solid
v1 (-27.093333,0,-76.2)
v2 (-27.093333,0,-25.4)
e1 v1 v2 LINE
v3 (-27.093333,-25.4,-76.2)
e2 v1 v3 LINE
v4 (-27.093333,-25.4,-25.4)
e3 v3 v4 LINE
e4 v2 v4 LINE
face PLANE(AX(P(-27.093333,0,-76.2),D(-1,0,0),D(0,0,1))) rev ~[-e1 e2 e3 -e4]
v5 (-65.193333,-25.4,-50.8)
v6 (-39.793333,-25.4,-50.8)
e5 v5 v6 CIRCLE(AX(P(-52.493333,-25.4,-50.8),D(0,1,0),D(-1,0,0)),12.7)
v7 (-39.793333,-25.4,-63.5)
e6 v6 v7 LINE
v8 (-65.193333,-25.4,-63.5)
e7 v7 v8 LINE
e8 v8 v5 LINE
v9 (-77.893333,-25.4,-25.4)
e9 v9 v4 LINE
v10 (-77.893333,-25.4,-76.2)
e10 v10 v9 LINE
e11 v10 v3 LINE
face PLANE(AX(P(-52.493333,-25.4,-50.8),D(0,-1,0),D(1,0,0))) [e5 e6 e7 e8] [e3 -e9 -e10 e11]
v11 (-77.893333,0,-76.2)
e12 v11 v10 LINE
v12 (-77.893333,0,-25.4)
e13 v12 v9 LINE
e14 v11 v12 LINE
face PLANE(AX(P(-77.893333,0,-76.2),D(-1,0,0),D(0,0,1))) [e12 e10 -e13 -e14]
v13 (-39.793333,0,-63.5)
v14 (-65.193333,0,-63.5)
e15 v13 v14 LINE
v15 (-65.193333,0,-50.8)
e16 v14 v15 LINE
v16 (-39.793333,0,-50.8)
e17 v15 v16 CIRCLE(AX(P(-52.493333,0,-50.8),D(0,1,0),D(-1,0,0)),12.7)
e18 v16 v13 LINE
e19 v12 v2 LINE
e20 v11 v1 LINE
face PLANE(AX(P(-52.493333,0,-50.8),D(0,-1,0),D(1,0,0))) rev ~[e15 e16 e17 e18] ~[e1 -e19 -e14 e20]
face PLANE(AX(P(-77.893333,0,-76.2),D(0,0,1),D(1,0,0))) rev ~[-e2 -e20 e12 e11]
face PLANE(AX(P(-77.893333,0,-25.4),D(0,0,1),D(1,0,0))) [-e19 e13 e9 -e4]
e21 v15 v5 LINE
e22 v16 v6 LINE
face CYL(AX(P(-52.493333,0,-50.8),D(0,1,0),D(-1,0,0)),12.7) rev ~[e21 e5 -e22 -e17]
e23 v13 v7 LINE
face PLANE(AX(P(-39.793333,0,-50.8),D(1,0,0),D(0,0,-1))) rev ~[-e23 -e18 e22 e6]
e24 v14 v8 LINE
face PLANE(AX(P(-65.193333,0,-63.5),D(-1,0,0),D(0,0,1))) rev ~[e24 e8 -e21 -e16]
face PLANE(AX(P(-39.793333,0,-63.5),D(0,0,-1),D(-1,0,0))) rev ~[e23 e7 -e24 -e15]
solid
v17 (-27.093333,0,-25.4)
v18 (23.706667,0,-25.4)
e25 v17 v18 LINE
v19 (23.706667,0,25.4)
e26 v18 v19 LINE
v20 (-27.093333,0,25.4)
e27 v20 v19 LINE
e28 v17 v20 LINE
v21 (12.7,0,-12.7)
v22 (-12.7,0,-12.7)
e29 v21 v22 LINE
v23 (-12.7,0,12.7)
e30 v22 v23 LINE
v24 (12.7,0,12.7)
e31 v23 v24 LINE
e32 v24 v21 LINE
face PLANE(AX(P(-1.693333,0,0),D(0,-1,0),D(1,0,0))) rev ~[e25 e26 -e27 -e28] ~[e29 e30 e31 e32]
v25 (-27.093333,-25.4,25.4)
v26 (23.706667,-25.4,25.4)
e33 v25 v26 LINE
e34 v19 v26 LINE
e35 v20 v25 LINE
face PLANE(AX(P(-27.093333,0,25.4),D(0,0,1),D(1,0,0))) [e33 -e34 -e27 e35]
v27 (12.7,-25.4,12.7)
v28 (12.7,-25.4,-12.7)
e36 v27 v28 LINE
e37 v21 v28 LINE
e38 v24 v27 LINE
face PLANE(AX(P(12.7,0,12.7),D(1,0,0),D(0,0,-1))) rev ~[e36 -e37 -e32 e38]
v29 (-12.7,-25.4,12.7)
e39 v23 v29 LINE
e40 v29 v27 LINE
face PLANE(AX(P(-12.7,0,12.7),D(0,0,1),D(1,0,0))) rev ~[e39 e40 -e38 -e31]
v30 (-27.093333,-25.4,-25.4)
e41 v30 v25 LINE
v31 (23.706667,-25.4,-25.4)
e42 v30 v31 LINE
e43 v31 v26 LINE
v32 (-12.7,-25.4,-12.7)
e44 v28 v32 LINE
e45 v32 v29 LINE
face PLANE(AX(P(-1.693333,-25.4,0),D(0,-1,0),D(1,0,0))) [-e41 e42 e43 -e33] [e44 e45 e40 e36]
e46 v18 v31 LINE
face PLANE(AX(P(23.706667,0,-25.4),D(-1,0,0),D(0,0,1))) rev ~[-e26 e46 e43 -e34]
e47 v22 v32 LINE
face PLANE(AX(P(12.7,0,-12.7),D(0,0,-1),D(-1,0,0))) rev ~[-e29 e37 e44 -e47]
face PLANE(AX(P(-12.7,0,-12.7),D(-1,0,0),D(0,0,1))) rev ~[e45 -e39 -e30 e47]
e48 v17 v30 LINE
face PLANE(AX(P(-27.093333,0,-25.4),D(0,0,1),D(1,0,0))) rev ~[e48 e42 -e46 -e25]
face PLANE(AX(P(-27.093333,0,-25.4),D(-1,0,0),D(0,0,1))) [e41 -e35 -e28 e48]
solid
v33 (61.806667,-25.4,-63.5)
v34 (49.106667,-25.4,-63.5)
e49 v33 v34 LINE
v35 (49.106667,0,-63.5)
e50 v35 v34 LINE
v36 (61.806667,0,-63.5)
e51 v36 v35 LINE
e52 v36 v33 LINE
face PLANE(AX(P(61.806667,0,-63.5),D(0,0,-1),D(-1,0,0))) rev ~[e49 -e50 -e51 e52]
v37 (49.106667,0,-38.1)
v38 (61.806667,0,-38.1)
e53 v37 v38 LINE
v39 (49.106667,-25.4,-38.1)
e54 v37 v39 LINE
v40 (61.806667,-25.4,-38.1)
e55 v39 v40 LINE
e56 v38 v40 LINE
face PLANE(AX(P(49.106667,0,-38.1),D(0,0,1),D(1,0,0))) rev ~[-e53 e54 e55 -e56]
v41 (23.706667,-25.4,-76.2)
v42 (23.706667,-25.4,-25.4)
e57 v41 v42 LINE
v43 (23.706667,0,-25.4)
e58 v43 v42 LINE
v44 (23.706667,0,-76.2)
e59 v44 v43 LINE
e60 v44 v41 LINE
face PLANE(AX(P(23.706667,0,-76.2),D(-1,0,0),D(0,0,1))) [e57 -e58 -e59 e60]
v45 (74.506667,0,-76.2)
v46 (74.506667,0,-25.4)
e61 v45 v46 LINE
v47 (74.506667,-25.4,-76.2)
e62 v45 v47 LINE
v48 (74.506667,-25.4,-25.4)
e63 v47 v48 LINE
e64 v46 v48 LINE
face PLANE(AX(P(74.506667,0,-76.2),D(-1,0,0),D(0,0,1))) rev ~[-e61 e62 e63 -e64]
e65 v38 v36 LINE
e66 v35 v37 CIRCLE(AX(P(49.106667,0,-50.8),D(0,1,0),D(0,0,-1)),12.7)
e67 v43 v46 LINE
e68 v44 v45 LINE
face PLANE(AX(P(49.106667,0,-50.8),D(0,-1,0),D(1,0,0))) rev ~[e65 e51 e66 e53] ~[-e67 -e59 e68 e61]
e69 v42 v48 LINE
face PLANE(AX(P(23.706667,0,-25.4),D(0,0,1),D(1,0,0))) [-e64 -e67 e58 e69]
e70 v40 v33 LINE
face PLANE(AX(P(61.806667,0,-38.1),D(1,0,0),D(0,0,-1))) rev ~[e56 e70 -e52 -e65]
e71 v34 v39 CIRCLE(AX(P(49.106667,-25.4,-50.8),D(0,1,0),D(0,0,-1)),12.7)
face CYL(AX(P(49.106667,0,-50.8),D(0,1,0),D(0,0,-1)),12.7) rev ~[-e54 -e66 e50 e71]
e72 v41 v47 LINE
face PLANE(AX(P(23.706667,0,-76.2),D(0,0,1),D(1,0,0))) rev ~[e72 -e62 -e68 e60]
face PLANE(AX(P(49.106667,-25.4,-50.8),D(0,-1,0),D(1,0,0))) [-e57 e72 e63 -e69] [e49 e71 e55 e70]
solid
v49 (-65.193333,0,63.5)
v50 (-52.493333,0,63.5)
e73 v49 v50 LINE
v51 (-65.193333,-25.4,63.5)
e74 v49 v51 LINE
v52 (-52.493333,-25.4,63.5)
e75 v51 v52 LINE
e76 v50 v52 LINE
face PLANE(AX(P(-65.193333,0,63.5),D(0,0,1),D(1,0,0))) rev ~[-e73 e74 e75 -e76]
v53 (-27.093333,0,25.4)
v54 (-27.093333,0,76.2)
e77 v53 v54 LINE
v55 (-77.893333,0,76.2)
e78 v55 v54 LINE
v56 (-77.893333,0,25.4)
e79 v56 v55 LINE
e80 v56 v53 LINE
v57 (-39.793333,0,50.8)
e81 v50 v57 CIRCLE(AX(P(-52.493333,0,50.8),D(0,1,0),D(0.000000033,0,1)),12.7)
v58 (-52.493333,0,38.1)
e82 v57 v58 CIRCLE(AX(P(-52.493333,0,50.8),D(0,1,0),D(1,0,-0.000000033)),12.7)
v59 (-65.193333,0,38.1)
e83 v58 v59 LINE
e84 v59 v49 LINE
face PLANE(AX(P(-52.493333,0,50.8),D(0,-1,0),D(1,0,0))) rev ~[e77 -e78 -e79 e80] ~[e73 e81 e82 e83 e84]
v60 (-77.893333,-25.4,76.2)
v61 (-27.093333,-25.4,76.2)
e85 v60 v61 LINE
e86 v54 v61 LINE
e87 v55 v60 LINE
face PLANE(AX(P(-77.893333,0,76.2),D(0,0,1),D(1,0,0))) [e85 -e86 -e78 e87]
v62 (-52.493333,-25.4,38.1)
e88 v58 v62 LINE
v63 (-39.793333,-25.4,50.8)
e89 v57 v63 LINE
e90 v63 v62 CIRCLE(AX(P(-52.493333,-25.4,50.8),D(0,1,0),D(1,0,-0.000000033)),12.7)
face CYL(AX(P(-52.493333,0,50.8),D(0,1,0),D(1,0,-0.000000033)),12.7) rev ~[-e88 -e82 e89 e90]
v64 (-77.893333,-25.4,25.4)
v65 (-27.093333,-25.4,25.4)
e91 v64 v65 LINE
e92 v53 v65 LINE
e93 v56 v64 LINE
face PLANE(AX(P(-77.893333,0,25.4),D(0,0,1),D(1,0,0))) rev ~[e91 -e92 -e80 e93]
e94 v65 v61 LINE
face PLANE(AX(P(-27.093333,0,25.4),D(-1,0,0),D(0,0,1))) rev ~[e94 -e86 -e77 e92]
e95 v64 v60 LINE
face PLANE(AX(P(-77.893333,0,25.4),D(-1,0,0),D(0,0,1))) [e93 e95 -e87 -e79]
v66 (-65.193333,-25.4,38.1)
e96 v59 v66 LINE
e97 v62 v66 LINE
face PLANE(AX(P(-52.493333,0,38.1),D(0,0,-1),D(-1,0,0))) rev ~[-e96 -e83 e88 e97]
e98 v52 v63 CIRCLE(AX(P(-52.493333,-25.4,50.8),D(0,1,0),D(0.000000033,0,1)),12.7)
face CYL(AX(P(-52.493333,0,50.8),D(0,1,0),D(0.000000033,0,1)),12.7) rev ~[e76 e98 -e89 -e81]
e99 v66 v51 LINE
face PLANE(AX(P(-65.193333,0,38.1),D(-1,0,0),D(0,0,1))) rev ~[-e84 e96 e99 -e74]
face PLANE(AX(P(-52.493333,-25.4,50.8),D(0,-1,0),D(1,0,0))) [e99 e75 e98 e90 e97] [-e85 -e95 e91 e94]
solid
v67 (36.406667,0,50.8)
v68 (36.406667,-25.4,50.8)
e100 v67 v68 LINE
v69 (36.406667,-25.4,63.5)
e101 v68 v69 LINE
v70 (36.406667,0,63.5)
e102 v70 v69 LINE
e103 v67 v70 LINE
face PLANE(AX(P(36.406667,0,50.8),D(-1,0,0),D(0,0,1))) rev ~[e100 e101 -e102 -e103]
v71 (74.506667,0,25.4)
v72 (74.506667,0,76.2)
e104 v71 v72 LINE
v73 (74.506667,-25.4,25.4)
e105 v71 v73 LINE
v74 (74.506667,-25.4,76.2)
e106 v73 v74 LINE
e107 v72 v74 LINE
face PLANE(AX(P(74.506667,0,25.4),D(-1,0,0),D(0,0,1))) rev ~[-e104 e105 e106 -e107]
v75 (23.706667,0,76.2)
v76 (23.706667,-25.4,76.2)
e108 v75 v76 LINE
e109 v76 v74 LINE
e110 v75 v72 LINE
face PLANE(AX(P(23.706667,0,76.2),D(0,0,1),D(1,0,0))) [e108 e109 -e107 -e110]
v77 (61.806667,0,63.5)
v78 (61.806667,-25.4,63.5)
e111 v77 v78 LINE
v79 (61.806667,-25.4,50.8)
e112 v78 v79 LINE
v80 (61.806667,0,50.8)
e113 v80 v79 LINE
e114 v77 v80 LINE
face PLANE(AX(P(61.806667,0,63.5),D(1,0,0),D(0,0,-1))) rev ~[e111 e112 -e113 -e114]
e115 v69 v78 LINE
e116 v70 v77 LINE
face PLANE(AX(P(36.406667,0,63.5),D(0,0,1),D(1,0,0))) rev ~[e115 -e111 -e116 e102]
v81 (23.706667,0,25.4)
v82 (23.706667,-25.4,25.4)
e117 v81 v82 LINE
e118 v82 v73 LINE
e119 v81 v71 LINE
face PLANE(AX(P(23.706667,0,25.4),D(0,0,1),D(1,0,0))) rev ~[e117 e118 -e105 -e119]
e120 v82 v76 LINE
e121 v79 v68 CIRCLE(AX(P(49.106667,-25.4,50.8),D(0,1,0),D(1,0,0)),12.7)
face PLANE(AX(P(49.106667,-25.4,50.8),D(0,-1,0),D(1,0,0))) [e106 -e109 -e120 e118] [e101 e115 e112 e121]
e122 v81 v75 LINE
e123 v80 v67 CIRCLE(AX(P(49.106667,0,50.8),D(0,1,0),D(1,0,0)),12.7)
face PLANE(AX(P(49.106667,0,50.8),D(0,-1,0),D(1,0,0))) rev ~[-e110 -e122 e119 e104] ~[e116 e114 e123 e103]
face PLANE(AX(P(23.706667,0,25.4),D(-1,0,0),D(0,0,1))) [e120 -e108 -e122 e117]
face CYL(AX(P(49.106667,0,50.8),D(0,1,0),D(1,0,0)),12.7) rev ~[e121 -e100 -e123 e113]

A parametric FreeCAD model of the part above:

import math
import FreeCAD as App
import Part
import Sketcher
Q = App.Units.Quantity

doc = App.newDocument("Part")
body = doc.addObject("PartDesign::Body", "Body")
body.AllowCompound = True

sketch1 = body.newObject("Sketcher::SketchObject", "Sketch")
sketch1.AttachmentSupport = (doc.getObject("XZ_Plane"), [""])
sketch1.MapMode = "FlatFace"
sketch1.addGeometry([
    Part.LineSegment(App.Vector(-27, 25, 0), App.Vector(-27, -25, 0)),
    Part.LineSegment(App.Vector(-27, -25, 0), App.Vector(24, -25, 0)),
    Part.LineSegment(App.Vector(24, -25, 0), App.Vector(24, 25, 0)),
    Part.LineSegment(App.Vector(24, 25, 0), App.Vector(-27, 25, 0)),
    Part.LineSegment(App.Vector(-13, -13, 0), App.Vector(-13, 13, 0)),
    Part.LineSegment(App.Vector(-13, 13, 0), App.Vector(13, 13, 0)),
    Part.LineSegment(App.Vector(13, 13, 0), App.Vector(13, -13, 0)),
    Part.LineSegment(App.Vector(13, -13, 0), App.Vector(-13, -13, 0)),
    Part.LineSegment(App.Vector(24, -25, 0), App.Vector(24, -76, 0)),
    Part.LineSegment(App.Vector(24, -76, 0), App.Vector(75, -76, 0)),
    Part.LineSegment(App.Vector(75, -76, 0), App.Vector(75, -25, 0)),
    Part.LineSegment(App.Vector(75, -25, 0), App.Vector(24, -25, 0)),
    Part.LineSegment(App.Vector(62, -64, 0), App.Vector(49, -64, 0)),
    Part.ArcOfCircle(Part.Circle(App.Vector(49, -51, 0), App.Vector(0, 0, 1), 13), math.radians(90), math.radians(270)),
    Part.LineSegment(App.Vector(49, -38, 0), App.Vector(62, -38, 0)),
    Part.LineSegment(App.Vector(62, -38, 0), App.Vector(62, -64, 0)),
    Part.LineSegment(App.Vector(-78, -25, 0), App.Vector(-78, -76, 0)),
    Part.LineSegment(App.Vector(-78, -76, 0), App.Vector(-27, -76, 0)),
    Part.LineSegment(App.Vector(-27, -76, 0), App.Vector(-27, -25, 0)),
    Part.LineSegment(App.Vector(-27, -25, 0), App.Vector(-78, -25, 0)),
    Part.ArcOfCircle(Part.Circle(App.Vector(-52, -51, 0), App.Vector(0, 0, 1), 13), math.radians(0), math.radians(180)),
    Part.LineSegment(App.Vector(-40, -51, 0), App.Vector(-40, -64, 0)),
    Part.LineSegment(App.Vector(-40, -64, 0), App.Vector(-65, -64, 0)),
    Part.LineSegment(App.Vector(-65, -64, 0), App.Vector(-65, -51, 0)),
    Part.LineSegment(App.Vector(-78, 76, 0), App.Vector(-78, 25, 0)),
    Part.LineSegment(App.Vector(-78, 25, 0), App.Vector(-27, 25, 0)),
    Part.LineSegment(App.Vector(-27, 25, 0), App.Vector(-27, 76, 0)),
    Part.LineSegment(App.Vector(-27, 76, 0), App.Vector(-78, 76, 0)),
    Part.ArcOfCircle(Part.Circle(App.Vector(-52, 51, 0), App.Vector(0, 0, 1), 13), math.radians(0), math.radians(90)),
    Part.ArcOfCircle(Part.Circle(App.Vector(-52, 51, 0), App.Vector(0, 0, 1), 13), math.radians(-90), math.radians(0)),
    Part.LineSegment(App.Vector(-52, 38, 0), App.Vector(-65, 38, 0)),
    Part.LineSegment(App.Vector(-65, 38, 0), App.Vector(-65, 64, 0)),
    Part.LineSegment(App.Vector(-65, 64, 0), App.Vector(-52, 64, 0)),
    Part.LineSegment(App.Vector(24, 76, 0), App.Vector(24, 25, 0)),
    Part.LineSegment(App.Vector(24, 25, 0), App.Vector(75, 25, 0)),
    Part.LineSegment(App.Vector(75, 25, 0), App.Vector(75, 76, 0)),
    Part.LineSegment(App.Vector(75, 76, 0), App.Vector(24, 76, 0)),
    Part.LineSegment(App.Vector(36, 64, 0), App.Vector(62, 64, 0)),
    Part.LineSegment(App.Vector(62, 64, 0), App.Vector(62, 51, 0)),
    Part.ArcOfCircle(Part.Circle(App.Vector(49, 51, 0), App.Vector(0, 0, 1), 13), math.radians(180), math.radians(360)),
    Part.LineSegment(App.Vector(36, 51, 0), App.Vector(36, 64, 0)),
], False)
sketch1.addConstraint([
    Sketcher.Constraint("Coincident", 0, 2, 1, 1),
    Sketcher.Constraint("Coincident", 1, 2, 2, 1),
    Sketcher.Constraint("Coincident", 2, 2, 3, 1),
    Sketcher.Constraint("Coincident", 3, 2, 0, 1),
    Sketcher.Constraint("Coincident", 4, 2, 5, 1),
    Sketcher.Constraint("Coincident", 5, 2, 6, 1),
    Sketcher.Constraint("Coincident", 6, 2, 7, 1),
    Sketcher.Constraint("Coincident", 7, 2, 4, 1),
    Sketcher.Constraint("Coincident", 8, 2, 9, 1),
    Sketcher.Constraint("Coincident", 9, 2, 10, 1),
    Sketcher.Constraint("Coincident", 10, 2, 11, 1),
    Sketcher.Constraint("Coincident", 11, 2, 8, 1),
    Sketcher.Constraint("Tangent", 12, 2, 13, 2),
    Sketcher.Constraint("Tangent", 13, 1, 14, 1),
    Sketcher.Constraint("Coincident", 14, 2, 15, 1),
    Sketcher.Constraint("Coincident", 15, 2, 12, 1),
    Sketcher.Constraint("Coincident", 16, 2, 17, 1),
    Sketcher.Constraint("Coincident", 17, 2, 18, 1),
    Sketcher.Constraint("Coincident", 18, 2, 19, 1),
    Sketcher.Constraint("Coincident", 19, 2, 16, 1),
    Sketcher.Constraint("Tangent", 20, 1, 21, 1),
    Sketcher.Constraint("Coincident", 21, 2, 22, 1),
    Sketcher.Constraint("Coincident", 22, 2, 23, 1),
    Sketcher.Constraint("Tangent", 23, 2, 20, 2),
    Sketcher.Constraint("Coincident", 24, 2, 25, 1),
    Sketcher.Constraint("Coincident", 25, 2, 26, 1),
    Sketcher.Constraint("Coincident", 26, 2, 27, 1),
    Sketcher.Constraint("Coincident", 27, 2, 24, 1),
    Sketcher.Constraint("Tangent", 28, 1, 29, 2),
    Sketcher.Constraint("Tangent", 29, 1, 30, 1),
    Sketcher.Constraint("Coincident", 30, 2, 31, 1),
    Sketcher.Constraint("Coincident", 31, 2, 32, 1),
    Sketcher.Constraint("Tangent", 32, 2, 28, 2),
    Sketcher.Constraint("Coincident", 33, 2, 34, 1),
    Sketcher.Constraint("Coincident", 34, 2, 35, 1),
    Sketcher.Constraint("Coincident", 35, 2, 36, 1),
    Sketcher.Constraint("Coincident", 36, 2, 33, 1),
    Sketcher.Constraint("Coincident", 37, 2, 38, 1),
    Sketcher.Constraint("Tangent", 38, 2, 39, 2),
    Sketcher.Constraint("Tangent", 39, 1, 40, 1),
    Sketcher.Constraint("Coincident", 40, 2, 37, 1),
    Sketcher.Constraint("Vertical", 0),
    Sketcher.Constraint("Horizontal", 1),
    Sketcher.Constraint("Vertical", 2),
    Sketcher.Constraint("Horizontal", 3),
    Sketcher.Constraint("Vertical", 4),
    Sketcher.Constraint("Horizontal", 5),
    Sketcher.Constraint("Vertical", 6),
    Sketcher.Constraint("Horizontal", 7),
    Sketcher.Constraint("Vertical", 8),
    Sketcher.Constraint("Horizontal", 9),
    Sketcher.Constraint("Vertical", 10),
    Sketcher.Constraint("Horizontal", 11),
    Sketcher.Constraint("Horizontal", 12),
    Sketcher.Constraint("Horizontal", 14),
    Sketcher.Constraint("Vertical", 15),
    Sketcher.Constraint("Vertical", 16),
    Sketcher.Constraint("Horizontal", 17),
    Sketcher.Constraint("Vertical", 18),
    Sketcher.Constraint("Horizontal", 19),
    Sketcher.Constraint("Vertical", 21),
    Sketcher.Constraint("Horizontal", 22),
    Sketcher.Constraint("Vertical", 23),
    Sketcher.Constraint("Vertical", 24),
    Sketcher.Constraint("Horizontal", 25),
    Sketcher.Constraint("Vertical", 26),
    Sketcher.Constraint("Horizontal", 27),
    Sketcher.Constraint("Horizontal", 30),
    Sketcher.Constraint("Vertical", 31),
    Sketcher.Constraint("Horizontal", 32),
    Sketcher.Constraint("Vertical", 33),
    Sketcher.Constraint("Horizontal", 34),
    Sketcher.Constraint("Vertical", 35),
    Sketcher.Constraint("Horizontal", 36),
    Sketcher.Constraint("Horizontal", 37),
    Sketcher.Constraint("Vertical", 38),
    Sketcher.Constraint("Vertical", 40),
    Sketcher.Constraint("Coincident", 11, 2, 1, 2),
    Sketcher.Constraint("Coincident", 18, 2, 0, 2),
    Sketcher.Constraint("Coincident", 25, 2, 3, 2),
    Sketcher.Constraint("Coincident", 33, 2, 2, 2),
    Sketcher.Constraint("Equal", 13, 20),
    Sketcher.Constraint("Equal", 20, 28),
    Sketcher.Constraint("Equal", 28, 29),
    Sketcher.Constraint("Equal", 29, 39),
    Sketcher.Constraint("Symmetric", 4, 2, 6, 2, -1, 1),
    Sketcher.Constraint("Symmetric", 20, 3, 28, 3, -1),
    Sketcher.Constraint("Symmetric", 13, 3, 39, 3, -1),
    Sketcher.Constraint("Symmetric", 19, 2, 24, 2, -1),
    Sketcher.Constraint("Symmetric", 22, 2, 31, 2, -1),
    Sketcher.Constraint("Symmetric", 9, 2, 35, 2, -1),
    Sketcher.Constraint("Symmetric", 15, 2, 37, 2, -1),
    Sketcher.Constraint("Horizontal", 13, 3, 20, 3),
    Sketcher.Constraint("Horizontal", 9, 2, 16, 2),
    Sketcher.Constraint("Horizontal", 39, 3, 28, 1),
    Sketcher.Constraint("Horizontal", 27, 2, 35, 2),
    Sketcher.Constraint("Equal", 3, 9),
    Sketcher.Constraint("Equal", 11, 17),
    Sketcher.Constraint("Equal", 7, 22),
    Sketcher.Constraint("Equal", 36, 0),
    Sketcher.Constraint("Equal", 37, 4),
    Sketcher.Constraint("Equal", 2, 8),
    Sketcher.Constraint("Radius", 13, Q("0.5 in")),
    Sketcher.Constraint("DistanceX", 1, 1, 1, 2, Q("2 in")),
    Sketcher.Constraint("DistanceY", 13, 3, -1, 1, Q("2 in")),
    Sketcher.Constraint("DistanceX", 20, 3, 13, 3, Q("4 in")),
    Sketcher.Constraint("DistanceX", 20, 3, 0, 2, Q("1 in")),
    Sketcher.Constraint("DistanceX", -1, 1, 13, 3, Q("49.106667 mm")),
])
pad1 = body.newObject("PartDesign::Pad", "Pad")
pad1.Profile = sketch1
pad1.Length = Q("1 in")

doc.recompute()
